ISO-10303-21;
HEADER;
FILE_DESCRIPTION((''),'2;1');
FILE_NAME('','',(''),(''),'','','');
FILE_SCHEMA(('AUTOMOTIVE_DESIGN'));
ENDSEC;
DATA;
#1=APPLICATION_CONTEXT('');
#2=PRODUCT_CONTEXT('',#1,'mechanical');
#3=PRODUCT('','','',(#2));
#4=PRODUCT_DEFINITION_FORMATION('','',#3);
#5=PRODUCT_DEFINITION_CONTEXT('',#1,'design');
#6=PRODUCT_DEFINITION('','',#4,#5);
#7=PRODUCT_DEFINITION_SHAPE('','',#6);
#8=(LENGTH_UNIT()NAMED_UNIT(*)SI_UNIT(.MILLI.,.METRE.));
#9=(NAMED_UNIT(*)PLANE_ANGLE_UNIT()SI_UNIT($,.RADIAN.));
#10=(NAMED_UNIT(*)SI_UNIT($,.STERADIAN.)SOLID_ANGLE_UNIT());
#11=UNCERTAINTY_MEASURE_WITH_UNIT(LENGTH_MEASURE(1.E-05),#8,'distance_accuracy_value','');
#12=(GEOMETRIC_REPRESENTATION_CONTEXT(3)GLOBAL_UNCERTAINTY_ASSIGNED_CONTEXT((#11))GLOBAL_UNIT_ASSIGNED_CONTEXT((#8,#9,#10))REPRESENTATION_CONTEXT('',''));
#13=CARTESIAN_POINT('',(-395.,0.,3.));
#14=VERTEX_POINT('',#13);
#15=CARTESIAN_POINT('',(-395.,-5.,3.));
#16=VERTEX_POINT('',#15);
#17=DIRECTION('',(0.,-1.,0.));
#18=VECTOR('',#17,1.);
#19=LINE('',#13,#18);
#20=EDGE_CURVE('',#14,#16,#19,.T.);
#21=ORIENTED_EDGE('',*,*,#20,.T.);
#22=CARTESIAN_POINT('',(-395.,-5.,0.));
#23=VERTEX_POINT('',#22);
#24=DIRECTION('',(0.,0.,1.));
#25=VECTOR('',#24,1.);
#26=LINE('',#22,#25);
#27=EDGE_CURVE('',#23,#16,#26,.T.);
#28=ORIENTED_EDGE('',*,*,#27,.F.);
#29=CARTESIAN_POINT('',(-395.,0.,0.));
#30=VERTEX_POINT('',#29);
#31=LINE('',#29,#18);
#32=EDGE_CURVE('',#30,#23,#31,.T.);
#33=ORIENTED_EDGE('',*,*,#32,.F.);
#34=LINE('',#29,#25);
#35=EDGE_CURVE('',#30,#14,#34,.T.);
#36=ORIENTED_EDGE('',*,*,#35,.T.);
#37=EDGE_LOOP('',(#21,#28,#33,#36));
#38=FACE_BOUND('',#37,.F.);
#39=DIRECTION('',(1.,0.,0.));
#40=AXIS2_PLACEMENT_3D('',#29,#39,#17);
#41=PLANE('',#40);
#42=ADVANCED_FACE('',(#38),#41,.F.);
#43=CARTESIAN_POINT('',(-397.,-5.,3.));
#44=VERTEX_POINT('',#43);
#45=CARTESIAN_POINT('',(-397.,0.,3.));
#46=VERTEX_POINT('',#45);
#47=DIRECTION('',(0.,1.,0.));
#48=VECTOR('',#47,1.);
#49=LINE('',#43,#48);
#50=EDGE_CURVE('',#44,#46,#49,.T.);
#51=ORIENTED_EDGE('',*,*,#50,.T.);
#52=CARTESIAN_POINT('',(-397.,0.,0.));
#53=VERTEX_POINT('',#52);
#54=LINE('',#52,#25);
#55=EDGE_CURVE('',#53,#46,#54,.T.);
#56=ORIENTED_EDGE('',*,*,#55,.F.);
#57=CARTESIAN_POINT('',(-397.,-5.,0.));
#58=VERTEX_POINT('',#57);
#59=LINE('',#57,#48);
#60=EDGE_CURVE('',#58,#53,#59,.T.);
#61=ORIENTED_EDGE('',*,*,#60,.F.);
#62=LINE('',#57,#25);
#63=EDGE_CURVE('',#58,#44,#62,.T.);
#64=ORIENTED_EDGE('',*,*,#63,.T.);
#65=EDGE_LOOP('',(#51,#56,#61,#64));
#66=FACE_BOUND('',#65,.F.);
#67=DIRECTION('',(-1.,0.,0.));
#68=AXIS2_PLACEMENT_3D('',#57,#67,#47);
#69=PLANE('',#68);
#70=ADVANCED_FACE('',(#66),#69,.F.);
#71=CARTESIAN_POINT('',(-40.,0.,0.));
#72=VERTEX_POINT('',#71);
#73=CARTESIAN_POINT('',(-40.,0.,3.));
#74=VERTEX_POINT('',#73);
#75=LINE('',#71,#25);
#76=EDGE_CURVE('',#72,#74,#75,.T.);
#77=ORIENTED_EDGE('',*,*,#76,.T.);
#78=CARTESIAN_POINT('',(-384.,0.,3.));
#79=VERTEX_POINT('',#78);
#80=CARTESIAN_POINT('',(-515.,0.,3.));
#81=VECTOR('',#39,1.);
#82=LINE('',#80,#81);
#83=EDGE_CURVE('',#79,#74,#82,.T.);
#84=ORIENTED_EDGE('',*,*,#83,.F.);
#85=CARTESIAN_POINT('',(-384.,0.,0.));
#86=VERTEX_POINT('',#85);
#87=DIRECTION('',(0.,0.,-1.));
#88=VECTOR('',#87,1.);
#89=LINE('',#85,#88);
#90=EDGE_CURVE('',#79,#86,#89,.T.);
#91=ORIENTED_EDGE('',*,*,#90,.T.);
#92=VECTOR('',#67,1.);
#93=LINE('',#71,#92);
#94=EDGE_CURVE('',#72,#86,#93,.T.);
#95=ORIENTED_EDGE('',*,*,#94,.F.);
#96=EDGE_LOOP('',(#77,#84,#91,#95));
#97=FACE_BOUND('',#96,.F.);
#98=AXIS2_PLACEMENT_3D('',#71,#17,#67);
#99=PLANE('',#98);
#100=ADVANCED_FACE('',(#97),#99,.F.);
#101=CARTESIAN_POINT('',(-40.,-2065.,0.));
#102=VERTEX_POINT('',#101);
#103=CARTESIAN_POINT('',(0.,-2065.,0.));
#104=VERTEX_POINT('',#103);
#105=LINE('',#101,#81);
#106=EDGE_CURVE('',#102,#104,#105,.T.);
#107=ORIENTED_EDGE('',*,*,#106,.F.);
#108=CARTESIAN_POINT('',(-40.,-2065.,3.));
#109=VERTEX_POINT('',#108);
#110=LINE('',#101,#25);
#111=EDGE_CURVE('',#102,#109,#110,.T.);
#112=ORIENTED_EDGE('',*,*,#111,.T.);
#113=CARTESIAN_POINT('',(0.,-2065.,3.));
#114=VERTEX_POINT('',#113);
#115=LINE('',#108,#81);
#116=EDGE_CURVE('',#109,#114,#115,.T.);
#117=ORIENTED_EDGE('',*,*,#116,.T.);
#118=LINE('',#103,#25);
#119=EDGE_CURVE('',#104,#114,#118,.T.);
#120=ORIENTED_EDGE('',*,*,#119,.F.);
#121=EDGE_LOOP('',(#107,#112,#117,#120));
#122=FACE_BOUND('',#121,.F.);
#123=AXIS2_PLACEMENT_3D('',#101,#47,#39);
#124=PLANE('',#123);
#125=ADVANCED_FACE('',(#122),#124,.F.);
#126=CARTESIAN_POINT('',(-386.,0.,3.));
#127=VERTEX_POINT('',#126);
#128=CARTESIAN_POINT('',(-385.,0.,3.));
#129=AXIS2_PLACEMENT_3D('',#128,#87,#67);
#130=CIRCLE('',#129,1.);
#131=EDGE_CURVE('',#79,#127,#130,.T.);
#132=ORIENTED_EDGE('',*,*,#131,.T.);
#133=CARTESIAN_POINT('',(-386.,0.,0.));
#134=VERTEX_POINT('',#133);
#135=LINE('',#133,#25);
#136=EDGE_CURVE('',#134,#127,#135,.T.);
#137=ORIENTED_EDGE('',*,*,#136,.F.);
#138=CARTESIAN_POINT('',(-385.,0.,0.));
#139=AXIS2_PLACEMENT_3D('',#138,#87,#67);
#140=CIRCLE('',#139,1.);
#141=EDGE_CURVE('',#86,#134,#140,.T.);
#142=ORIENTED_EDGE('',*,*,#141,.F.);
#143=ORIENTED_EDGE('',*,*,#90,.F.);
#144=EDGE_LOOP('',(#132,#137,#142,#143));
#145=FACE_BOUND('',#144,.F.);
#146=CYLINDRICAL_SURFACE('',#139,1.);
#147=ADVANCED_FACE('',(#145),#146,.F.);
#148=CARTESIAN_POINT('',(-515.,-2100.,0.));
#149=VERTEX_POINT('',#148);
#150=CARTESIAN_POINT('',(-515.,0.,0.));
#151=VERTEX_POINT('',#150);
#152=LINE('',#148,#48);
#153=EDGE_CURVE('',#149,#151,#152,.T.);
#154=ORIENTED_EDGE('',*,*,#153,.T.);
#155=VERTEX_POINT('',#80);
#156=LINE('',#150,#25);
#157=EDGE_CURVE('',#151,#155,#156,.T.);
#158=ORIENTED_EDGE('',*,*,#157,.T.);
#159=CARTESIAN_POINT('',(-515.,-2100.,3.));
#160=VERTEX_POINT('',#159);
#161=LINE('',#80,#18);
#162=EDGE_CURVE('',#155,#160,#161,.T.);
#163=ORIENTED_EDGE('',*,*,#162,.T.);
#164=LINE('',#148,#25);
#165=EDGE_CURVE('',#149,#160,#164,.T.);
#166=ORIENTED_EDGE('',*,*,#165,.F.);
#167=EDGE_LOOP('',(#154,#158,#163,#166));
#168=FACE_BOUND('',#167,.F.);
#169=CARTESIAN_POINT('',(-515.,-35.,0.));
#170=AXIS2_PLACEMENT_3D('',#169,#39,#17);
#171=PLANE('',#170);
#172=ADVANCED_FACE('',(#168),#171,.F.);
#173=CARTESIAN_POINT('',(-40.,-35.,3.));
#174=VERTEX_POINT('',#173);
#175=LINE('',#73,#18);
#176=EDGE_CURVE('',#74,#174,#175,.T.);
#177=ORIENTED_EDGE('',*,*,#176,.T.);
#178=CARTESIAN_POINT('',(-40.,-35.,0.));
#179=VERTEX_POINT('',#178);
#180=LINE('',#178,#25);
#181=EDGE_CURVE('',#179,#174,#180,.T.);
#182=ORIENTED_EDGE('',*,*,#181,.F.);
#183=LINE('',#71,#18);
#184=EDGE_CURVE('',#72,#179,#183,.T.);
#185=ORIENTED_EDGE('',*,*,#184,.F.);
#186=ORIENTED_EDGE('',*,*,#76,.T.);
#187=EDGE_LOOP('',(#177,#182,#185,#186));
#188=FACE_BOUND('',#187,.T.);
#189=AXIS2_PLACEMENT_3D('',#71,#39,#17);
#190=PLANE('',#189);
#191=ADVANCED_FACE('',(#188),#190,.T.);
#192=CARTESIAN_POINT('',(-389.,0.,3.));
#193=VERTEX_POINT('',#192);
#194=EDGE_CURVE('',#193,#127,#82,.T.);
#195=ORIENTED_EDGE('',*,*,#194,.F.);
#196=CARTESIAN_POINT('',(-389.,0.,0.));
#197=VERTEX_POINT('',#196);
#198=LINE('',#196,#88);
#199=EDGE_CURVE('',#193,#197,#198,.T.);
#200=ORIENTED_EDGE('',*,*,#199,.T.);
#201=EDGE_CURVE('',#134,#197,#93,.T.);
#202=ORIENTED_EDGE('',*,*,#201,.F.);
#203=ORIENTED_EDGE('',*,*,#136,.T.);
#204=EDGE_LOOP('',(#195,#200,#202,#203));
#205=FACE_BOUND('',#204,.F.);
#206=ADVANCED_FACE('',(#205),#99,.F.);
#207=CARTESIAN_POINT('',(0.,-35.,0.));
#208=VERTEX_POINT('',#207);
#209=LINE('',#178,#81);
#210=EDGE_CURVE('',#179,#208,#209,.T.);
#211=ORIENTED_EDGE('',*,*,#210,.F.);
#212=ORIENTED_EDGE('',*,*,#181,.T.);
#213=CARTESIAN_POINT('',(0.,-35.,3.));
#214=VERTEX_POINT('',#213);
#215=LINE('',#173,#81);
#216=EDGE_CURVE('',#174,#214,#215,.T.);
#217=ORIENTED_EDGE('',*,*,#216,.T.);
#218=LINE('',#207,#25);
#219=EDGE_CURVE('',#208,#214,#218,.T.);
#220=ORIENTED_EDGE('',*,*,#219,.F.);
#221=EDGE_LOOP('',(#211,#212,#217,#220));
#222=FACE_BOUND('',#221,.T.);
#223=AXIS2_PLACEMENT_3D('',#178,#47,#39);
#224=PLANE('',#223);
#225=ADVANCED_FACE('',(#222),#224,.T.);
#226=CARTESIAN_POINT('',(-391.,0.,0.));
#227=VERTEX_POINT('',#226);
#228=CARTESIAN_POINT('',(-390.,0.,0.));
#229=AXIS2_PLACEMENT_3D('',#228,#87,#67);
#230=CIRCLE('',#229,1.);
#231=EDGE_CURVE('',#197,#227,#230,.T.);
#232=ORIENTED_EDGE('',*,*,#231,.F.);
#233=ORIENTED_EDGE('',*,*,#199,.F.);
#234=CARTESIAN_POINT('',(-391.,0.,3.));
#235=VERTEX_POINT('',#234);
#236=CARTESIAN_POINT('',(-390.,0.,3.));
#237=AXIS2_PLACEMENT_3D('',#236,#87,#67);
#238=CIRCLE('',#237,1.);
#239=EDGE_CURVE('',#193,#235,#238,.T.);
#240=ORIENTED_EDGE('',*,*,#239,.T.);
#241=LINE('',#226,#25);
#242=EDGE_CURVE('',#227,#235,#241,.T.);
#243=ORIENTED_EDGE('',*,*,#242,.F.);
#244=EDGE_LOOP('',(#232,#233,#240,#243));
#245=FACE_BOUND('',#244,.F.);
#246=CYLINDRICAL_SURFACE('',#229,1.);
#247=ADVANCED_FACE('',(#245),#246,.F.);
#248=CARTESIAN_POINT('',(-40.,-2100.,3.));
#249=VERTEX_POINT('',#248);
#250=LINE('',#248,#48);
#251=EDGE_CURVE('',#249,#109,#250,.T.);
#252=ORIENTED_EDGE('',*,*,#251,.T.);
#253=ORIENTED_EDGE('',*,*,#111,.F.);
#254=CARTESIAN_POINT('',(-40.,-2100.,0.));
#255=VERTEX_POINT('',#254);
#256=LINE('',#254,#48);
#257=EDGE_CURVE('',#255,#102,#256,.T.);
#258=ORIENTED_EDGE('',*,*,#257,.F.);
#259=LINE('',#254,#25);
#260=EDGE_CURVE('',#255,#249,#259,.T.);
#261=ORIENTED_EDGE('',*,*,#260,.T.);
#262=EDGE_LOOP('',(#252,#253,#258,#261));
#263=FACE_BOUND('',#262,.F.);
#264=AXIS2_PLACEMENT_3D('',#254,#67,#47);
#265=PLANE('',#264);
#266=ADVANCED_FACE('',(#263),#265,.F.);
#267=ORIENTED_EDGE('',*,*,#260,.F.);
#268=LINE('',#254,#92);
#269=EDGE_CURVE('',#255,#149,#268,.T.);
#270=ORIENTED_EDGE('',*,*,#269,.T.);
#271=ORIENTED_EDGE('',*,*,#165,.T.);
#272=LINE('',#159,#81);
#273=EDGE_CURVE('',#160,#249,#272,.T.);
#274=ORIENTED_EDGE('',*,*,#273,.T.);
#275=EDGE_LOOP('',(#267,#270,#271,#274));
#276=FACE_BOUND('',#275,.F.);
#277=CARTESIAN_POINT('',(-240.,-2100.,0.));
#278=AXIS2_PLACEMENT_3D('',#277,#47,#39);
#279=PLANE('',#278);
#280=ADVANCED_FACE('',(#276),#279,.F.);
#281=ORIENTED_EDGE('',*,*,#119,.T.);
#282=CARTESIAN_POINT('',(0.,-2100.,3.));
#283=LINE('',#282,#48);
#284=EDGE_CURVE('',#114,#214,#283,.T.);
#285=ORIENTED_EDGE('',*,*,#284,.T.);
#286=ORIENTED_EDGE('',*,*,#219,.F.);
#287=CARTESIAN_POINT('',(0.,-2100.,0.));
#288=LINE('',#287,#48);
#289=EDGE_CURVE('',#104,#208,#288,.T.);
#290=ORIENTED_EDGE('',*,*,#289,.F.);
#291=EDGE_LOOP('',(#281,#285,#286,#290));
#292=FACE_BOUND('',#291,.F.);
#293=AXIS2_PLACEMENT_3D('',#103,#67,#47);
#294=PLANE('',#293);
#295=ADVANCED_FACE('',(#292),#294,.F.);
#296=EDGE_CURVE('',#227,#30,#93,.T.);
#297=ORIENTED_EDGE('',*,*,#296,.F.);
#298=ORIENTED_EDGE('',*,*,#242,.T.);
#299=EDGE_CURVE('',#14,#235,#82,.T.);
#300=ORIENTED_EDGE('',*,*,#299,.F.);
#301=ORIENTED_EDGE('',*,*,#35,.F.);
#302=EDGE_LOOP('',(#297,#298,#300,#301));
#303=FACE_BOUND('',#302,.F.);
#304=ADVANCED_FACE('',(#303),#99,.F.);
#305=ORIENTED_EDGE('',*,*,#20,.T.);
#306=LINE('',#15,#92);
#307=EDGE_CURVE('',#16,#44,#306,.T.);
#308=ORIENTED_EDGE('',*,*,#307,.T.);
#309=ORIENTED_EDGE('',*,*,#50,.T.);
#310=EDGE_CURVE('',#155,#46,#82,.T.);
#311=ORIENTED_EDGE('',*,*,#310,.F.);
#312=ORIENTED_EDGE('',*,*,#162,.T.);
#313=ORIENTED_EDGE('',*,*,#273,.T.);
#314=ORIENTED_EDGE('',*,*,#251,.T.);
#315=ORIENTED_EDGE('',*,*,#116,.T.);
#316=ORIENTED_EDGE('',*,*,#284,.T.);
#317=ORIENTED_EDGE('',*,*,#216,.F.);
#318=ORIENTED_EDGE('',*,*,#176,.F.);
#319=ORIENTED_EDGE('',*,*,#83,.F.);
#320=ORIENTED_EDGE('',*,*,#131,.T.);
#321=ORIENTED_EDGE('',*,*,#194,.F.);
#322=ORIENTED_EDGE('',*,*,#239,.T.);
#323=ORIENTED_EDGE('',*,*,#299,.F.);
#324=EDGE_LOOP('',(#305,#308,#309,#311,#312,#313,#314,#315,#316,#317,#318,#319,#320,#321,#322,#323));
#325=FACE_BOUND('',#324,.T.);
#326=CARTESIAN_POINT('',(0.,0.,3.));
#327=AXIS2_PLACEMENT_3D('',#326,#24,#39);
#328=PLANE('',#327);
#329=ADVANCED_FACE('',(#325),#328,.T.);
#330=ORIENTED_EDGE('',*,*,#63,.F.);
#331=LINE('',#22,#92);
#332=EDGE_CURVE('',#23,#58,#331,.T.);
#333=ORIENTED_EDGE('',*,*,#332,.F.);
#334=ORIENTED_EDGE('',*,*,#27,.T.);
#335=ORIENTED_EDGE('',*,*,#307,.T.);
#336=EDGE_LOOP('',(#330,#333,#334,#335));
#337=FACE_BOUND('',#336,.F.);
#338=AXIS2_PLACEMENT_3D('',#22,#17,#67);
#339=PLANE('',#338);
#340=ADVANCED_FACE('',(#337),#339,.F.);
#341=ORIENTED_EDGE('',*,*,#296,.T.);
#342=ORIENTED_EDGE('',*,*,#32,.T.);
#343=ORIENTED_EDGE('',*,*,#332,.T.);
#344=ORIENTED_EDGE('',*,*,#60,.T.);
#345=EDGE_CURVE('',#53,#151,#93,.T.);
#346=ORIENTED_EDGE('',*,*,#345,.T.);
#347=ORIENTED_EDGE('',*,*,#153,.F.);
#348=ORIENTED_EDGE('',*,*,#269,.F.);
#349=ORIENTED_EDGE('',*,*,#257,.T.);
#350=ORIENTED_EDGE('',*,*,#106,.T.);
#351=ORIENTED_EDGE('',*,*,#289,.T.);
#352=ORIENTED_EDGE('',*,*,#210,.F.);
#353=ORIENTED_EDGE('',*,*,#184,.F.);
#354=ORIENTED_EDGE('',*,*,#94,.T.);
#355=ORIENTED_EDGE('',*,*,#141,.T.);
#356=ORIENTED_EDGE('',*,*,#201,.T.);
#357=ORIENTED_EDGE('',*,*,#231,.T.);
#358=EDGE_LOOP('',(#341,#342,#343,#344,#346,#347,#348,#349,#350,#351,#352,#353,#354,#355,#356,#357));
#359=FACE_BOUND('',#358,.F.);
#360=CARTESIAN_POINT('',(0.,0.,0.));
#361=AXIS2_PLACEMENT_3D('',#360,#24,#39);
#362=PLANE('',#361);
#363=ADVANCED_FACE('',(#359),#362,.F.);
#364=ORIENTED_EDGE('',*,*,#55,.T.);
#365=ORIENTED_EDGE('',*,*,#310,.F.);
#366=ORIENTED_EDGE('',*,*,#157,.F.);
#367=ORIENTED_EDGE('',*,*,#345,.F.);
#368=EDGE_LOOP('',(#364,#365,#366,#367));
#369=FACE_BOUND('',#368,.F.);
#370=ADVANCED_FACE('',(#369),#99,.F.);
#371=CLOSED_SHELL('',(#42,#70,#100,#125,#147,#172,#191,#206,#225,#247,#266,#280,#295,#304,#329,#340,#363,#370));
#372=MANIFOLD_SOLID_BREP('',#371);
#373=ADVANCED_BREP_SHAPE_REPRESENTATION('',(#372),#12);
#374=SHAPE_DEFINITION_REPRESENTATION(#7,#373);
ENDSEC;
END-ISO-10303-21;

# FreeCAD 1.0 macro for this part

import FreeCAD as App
import Part
import Sketcher

V = App.Vector
Q = App.Units.Quantity


def add_polygon(sketch, points):
    """Adds a closed chain of lines whose ends are joined by coincident constraints."""
    first, n = sketch.GeometryCount, len(points)
    for a, b in zip(points, points[1:] + points[:1]):
        sketch.addGeometry(Part.LineSegment(App.Vector(*a, 0), App.Vector(*b, 0)), False)
    for i in range(n):
        sketch.addConstraint(Sketcher.Constraint("Coincident", first + i, 2, first + (i + 1) % n, 1))

doc = App.newDocument("Part")
body = doc.addObject("PartDesign::Body", "Body")

# Sketch on XY plane
sketch1 = doc.addObject("Sketcher::SketchObject", "Sketch")
body.addObject(sketch1)
sketch1.AttachmentSupport = (doc.XY_Plane, [""])
sketch1.MapMode = "FlatFace"
add_polygon(sketch1, [(-40, -35), (-40, 0), (-515, 0), (-515, -2100), (-40, -2100), (-40, -2065), (0, -2065), (0, -35)])  # lines 0-7
sketch1.addConstraint([
    Sketcher.Constraint("Vertical", 0),
    Sketcher.Constraint("Horizontal", 1),
    Sketcher.Constraint("Vertical", 2),
    Sketcher.Constraint("Horizontal", 3),
    Sketcher.Constraint("Vertical", 4),
    Sketcher.Constraint("Horizontal", 5),
    Sketcher.Constraint("Vertical", 6),
    Sketcher.Constraint("Horizontal", 7),
    Sketcher.Constraint("PointOnObject", 0, 2, -1),
    Sketcher.Constraint("PointOnObject", 5, 2, -2),
    Sketcher.Constraint("Vertical", 0, 2, 3, 2),
    Sketcher.Constraint("Equal", 0, 4),
    Sketcher.Constraint("DistanceX", 5, 1, 5, 2, Q("40 mm")),
    Sketcher.Constraint("DistanceY", 0, 1, 0, 2, Q("35 mm")),
    Sketcher.Constraint("DistanceY", 2, 2, 2, 1, Q("2100 mm")),
    Sketcher.Constraint("DistanceX", 1, 2, -1, 1, Q("515 mm")),
])
pad1 = doc.addObject("PartDesign::Pad", "Pad")
body.addObject(pad1)
pad1.Profile = sketch1
pad1.Length = 3

# Sketch on XY plane
sketch2 = doc.addObject("Sketcher::SketchObject", "Sketch001")
body.addObject(sketch2)
sketch2.AttachmentSupport = (doc.XY_Plane, [""])
sketch2.MapMode = "FlatFace"
add_polygon(sketch2, [(-397, -5), (-397, 0), (-395, 0), (-395, -5)])  # lines 0-3
sketch2.addGeometry(Part.Circle(V(-390, 0, 0), V(0, 0, 1), 1), False)  # 4
sketch2.addGeometry(Part.Circle(V(-385, 0, 0), V(0, 0, 1), 1), False)  # 5
sketch2.addConstraint([
    Sketcher.Constraint("Vertical", 0),
    Sketcher.Constraint("Horizontal", 1),
    Sketcher.Constraint("Vertical", 2),
    Sketcher.Constraint("Horizontal", 3),
    Sketcher.Constraint("Equal", 4, 5),
    Sketcher.Constraint("PointOnObject", 4, 3, -1),
    Sketcher.Constraint("PointOnObject", 5, 3, -1),
    Sketcher.Constraint("PointOnObject", 0, 2, -1),
    Sketcher.Constraint("Diameter", 4, Q("2 mm")),
    Sketcher.Constraint("DistanceX", 1, 1, 1, 2, Q("2 mm")),
    Sketcher.Constraint("DistanceY", 0, 1, 0, 2, Q("5 mm")),
    Sketcher.Constraint("DistanceX", 4, 3, 5, 3, Q("5 mm")),
    Sketcher.Constraint("DistanceX", 1, 2, 4, 3, Q("5 mm")),
    Sketcher.Constraint("DistanceX", 4, 3, -1, 1, Q("390 mm")),
])
pocket1 = doc.addObject("PartDesign::Pocket", "Pocket")
body.addObject(pocket1)
pocket1.Profile = sketch2
pocket1.Length = 3
pocket1.Reversed = True

doc.recompute()
